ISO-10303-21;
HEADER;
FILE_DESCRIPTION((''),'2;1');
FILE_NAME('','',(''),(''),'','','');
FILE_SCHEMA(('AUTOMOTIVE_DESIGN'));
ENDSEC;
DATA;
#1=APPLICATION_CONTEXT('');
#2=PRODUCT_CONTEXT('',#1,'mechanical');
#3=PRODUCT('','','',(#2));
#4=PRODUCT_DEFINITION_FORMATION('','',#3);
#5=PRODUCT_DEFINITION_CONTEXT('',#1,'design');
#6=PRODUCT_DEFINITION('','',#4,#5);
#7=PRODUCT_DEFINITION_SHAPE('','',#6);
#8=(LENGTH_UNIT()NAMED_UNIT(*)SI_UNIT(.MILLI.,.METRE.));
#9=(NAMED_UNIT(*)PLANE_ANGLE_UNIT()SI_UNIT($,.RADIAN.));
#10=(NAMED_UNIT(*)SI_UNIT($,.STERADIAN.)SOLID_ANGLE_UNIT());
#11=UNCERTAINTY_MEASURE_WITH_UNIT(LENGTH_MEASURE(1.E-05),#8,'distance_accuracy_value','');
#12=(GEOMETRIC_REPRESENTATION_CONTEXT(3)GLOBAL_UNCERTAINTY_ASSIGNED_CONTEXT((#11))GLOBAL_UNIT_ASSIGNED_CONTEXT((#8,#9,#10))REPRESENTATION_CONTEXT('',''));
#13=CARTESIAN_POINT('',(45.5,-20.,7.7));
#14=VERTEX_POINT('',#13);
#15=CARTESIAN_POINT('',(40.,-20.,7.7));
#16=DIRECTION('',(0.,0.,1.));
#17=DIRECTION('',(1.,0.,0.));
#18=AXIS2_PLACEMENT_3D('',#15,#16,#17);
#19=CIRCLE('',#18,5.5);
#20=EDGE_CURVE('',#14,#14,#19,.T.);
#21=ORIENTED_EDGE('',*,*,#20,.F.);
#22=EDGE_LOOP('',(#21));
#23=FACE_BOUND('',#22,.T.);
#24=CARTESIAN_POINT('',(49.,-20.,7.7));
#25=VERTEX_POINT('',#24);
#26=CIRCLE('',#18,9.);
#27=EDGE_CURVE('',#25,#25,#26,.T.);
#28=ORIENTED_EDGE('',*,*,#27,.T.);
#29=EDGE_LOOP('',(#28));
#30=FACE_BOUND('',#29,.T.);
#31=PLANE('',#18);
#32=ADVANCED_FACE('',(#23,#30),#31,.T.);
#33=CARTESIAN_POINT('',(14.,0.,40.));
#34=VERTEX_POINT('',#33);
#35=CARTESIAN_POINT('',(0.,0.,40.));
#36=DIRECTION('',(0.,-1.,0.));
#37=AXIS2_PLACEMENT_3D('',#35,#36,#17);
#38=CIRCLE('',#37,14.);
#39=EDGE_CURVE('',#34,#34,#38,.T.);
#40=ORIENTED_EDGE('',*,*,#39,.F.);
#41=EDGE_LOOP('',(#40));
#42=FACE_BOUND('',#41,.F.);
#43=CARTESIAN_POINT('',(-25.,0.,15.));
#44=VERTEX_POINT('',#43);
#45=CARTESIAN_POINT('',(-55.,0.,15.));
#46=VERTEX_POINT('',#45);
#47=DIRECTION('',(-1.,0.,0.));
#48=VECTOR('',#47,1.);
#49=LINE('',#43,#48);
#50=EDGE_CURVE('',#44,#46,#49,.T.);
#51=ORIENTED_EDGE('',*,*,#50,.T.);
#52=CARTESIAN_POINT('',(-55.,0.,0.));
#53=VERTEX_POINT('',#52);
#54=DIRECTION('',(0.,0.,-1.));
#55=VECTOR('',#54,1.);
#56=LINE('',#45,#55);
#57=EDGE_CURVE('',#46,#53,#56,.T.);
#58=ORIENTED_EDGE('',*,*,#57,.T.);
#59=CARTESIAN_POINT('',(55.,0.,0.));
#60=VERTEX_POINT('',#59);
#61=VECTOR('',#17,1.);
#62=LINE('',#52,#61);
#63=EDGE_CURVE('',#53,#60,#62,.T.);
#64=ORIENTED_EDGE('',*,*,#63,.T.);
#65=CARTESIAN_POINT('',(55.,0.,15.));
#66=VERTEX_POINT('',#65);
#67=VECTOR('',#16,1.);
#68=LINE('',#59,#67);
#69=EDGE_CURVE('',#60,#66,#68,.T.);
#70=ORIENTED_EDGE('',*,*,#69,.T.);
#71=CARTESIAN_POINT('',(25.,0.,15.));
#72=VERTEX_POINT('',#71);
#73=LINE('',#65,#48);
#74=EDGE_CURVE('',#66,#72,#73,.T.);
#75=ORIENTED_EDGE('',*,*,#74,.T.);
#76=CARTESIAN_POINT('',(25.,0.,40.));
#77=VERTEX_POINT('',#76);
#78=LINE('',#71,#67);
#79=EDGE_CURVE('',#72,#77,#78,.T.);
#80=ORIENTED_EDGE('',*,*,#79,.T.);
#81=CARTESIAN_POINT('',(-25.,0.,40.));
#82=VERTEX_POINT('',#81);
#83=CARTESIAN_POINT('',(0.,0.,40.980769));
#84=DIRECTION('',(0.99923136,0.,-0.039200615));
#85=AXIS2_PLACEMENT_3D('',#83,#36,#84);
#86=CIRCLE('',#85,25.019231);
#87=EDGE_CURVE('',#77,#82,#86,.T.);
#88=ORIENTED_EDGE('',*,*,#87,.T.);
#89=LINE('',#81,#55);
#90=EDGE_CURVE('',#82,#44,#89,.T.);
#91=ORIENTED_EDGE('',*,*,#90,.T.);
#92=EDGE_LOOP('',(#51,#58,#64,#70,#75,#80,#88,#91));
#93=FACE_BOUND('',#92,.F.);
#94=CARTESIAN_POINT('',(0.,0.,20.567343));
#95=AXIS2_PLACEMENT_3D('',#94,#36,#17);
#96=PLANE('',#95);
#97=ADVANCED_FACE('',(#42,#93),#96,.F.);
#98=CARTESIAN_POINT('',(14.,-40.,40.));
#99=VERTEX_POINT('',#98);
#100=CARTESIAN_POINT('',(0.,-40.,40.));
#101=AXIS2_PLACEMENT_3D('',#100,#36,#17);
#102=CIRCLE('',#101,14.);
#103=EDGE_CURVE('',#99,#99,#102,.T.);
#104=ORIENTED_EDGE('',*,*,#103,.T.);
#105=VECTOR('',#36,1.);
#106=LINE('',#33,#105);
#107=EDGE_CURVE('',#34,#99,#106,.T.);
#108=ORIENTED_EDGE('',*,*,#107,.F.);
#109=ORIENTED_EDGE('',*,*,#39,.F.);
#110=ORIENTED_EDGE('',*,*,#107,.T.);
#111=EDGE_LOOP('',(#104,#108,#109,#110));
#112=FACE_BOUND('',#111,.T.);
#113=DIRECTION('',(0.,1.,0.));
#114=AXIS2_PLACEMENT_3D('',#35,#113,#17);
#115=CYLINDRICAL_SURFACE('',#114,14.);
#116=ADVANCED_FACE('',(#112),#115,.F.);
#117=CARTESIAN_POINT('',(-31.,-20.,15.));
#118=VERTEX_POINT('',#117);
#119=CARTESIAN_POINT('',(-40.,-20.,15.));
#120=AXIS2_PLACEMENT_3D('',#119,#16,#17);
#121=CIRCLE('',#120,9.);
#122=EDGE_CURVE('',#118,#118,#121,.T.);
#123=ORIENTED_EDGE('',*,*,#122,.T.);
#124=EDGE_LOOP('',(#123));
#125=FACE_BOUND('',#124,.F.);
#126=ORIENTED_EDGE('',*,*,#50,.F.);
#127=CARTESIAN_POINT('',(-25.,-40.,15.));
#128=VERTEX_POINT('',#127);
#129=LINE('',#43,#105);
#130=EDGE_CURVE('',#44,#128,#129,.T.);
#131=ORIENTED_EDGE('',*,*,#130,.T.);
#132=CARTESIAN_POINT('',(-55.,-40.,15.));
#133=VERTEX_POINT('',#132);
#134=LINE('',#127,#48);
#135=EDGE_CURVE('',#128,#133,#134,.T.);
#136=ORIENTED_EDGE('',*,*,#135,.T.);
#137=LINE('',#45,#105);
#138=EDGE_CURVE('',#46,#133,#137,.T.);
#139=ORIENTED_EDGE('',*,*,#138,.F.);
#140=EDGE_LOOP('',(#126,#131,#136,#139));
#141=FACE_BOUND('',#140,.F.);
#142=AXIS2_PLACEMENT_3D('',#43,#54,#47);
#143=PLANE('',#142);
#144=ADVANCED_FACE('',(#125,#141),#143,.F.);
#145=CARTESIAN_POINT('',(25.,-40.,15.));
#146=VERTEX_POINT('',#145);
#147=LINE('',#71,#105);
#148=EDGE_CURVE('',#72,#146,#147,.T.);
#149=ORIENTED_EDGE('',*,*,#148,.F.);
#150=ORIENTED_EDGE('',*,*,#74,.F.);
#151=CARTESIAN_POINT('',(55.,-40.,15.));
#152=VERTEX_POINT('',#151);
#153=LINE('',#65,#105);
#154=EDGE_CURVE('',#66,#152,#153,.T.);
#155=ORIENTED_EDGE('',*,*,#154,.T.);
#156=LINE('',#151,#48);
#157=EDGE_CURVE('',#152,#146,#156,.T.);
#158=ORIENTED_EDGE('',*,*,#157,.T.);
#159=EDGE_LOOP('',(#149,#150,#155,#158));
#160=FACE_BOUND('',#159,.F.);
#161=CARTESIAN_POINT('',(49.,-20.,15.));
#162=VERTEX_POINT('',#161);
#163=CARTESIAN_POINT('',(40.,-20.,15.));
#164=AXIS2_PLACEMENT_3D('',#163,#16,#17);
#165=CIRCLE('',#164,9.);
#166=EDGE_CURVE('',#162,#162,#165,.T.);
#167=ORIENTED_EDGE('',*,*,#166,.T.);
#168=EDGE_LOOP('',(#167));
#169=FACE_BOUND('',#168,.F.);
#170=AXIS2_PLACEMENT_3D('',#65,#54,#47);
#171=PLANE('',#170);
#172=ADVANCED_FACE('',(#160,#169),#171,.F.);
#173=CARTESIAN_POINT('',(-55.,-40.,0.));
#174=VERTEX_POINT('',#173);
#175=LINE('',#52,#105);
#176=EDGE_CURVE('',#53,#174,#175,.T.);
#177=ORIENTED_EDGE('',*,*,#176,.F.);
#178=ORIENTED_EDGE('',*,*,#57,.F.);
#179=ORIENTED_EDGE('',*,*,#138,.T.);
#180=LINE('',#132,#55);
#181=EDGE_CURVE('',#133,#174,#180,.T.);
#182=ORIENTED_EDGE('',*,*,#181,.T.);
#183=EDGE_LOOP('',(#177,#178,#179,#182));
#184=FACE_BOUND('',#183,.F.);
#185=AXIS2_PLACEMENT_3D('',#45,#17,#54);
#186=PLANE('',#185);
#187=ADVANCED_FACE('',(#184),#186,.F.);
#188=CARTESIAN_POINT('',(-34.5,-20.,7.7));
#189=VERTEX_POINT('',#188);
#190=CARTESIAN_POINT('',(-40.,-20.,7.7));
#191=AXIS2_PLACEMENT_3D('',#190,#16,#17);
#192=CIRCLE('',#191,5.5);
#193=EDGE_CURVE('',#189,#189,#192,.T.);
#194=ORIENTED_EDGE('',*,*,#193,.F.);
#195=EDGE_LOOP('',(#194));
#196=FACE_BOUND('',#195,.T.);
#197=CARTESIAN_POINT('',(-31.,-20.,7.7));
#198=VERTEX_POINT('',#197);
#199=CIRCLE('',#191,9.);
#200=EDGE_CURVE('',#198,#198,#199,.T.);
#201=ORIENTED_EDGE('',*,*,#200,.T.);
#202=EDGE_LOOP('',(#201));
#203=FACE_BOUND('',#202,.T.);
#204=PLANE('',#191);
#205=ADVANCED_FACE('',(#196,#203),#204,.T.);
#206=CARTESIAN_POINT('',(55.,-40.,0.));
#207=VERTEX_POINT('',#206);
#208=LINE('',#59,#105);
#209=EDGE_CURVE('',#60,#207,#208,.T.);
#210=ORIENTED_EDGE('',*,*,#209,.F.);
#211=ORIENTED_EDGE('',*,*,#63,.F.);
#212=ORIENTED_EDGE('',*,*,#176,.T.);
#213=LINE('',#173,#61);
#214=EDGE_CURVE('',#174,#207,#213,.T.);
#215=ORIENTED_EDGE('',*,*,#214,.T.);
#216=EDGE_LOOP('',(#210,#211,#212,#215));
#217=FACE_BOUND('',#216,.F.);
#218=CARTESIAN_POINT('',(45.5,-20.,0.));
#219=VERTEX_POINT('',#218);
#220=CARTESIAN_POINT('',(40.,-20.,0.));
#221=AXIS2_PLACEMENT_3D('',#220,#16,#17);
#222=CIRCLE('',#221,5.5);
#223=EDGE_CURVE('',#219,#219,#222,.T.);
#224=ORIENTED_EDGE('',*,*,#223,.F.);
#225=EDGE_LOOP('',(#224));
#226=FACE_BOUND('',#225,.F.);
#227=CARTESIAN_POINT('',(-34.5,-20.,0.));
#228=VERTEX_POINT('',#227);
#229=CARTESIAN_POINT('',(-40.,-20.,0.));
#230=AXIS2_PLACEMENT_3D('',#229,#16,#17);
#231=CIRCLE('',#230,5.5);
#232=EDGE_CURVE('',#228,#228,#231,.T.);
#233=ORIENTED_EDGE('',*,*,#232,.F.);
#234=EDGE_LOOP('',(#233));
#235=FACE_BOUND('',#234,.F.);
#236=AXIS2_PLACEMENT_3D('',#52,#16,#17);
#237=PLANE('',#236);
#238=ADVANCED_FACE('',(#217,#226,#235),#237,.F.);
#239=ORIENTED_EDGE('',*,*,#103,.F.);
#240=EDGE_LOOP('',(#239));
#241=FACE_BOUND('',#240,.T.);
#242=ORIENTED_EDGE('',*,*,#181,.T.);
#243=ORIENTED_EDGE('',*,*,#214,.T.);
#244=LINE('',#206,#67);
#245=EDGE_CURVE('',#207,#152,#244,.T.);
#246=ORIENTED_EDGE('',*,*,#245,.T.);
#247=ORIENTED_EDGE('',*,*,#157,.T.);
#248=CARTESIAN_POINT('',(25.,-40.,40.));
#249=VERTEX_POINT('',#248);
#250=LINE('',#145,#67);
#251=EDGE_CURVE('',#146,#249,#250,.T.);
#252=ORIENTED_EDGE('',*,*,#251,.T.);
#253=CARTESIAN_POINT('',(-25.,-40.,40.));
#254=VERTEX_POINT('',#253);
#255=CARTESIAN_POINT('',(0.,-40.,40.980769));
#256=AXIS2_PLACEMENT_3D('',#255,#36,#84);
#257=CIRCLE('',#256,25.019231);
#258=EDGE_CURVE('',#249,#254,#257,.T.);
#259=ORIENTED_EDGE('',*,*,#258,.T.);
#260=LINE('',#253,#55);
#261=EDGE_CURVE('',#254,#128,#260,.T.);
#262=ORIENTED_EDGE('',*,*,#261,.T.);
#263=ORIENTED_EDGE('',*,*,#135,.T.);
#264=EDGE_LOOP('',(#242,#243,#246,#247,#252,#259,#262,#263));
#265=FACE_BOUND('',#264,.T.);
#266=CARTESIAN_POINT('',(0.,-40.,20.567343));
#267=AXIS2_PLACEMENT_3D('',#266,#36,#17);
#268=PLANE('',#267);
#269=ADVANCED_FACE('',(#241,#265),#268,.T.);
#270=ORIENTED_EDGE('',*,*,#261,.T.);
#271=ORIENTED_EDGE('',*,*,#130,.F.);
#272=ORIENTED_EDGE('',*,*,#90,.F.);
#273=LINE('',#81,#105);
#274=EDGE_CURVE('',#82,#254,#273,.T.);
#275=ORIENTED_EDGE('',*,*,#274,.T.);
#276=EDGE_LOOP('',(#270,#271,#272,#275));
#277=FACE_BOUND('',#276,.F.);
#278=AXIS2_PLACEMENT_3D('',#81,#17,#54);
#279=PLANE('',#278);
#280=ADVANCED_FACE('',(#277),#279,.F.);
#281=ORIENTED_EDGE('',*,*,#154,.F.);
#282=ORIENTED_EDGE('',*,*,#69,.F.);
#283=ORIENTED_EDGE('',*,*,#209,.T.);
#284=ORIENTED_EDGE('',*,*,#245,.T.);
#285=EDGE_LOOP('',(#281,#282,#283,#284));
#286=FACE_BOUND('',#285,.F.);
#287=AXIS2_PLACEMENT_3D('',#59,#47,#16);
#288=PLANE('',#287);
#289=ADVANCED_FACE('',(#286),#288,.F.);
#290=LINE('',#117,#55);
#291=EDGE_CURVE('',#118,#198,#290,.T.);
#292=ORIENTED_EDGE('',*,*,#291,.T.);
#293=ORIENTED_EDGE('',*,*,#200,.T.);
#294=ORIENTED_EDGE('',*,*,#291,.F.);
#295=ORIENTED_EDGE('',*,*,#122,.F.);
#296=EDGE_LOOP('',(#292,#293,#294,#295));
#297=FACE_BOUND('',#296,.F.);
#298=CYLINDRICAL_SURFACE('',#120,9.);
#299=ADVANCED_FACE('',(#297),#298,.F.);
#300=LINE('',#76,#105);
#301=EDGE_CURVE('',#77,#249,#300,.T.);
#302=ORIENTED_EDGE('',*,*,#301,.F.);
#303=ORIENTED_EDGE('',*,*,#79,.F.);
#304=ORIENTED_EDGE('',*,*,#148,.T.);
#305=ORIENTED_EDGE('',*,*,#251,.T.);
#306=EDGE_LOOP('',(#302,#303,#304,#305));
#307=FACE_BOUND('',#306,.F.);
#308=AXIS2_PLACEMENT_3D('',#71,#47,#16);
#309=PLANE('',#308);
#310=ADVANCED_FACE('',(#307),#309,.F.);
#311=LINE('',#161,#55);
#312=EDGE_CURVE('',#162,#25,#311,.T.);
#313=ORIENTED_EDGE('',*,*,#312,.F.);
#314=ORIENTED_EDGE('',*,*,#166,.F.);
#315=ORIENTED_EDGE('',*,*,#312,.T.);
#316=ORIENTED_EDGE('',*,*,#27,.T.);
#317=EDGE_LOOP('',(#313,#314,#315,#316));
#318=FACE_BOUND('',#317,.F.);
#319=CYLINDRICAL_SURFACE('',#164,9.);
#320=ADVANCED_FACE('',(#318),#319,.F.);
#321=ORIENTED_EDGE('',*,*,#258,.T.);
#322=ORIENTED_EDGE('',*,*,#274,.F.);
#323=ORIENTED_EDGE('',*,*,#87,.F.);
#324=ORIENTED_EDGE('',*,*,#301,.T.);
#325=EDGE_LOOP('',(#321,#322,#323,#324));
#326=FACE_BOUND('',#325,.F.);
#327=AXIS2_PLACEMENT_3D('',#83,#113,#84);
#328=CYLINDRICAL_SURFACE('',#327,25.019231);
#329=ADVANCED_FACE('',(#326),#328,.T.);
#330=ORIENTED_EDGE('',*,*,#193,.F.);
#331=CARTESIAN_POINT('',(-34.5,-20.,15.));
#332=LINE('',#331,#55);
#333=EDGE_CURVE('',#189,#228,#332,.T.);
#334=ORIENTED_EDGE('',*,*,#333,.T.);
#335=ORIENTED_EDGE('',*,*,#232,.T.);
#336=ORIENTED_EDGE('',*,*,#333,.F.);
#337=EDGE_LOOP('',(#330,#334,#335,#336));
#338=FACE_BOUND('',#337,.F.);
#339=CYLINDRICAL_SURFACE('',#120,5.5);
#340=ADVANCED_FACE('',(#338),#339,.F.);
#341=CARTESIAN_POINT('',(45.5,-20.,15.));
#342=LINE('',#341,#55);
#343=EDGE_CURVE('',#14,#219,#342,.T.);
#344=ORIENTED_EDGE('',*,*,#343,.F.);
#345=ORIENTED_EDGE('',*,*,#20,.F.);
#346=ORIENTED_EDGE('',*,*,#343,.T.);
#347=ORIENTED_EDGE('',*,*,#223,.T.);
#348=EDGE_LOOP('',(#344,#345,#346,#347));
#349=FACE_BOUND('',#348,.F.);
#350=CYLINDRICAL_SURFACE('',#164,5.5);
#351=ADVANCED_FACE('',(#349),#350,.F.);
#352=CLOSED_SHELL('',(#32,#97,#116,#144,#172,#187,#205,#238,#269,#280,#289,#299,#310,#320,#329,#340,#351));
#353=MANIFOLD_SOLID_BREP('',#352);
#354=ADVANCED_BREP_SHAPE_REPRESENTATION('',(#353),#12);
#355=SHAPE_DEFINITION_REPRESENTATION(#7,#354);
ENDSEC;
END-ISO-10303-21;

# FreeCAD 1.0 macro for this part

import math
import FreeCAD as App
import Part
import Sketcher
from FreeCAD import Vector
Q = App.Units.Quantity

doc = App.newDocument("Part")
body = doc.addObject("PartDesign::Body", "Body")

sketch1 = doc.addObject("Sketcher::SketchObject", "Sketch")
body.addObject(sketch1)
sketch1.AttachmentSupport = (doc.XZ_Plane, [""])
sketch1.MapMode = "FlatFace"
sketch1.addGeometry([
    Part.LineSegment(Vector(-55, 0, 0), Vector(55, 0, 0)),
    Part.LineSegment(Vector(55, 0, 0), Vector(55, 15, 0)),
    Part.LineSegment(Vector(55, 15, 0), Vector(25, 15, 0)),
    Part.LineSegment(Vector(25, 15, 0), Vector(25, 40, 0)),
    Part.ArcOfCircle(Part.Circle(Vector(0, 41, 0), Vector(0, 0, 1), 25), math.radians(-2), math.radians(182)),
    Part.LineSegment(Vector(-25, 40, 0), Vector(-25, 15, 0)),
    Part.LineSegment(Vector(-25, 15, 0), Vector(-55, 15, 0)),
    Part.LineSegment(Vector(-55, 15, 0), Vector(-55, 0, 0)),
    Part.Circle(Vector(0, 40, 0), Vector(0, 0, 1), 14),
], False)
sketch1.addConstraint([
    Sketcher.Constraint("Coincident", 0, 2, 1, 1),
    Sketcher.Constraint("Coincident", 1, 2, 2, 1),
    Sketcher.Constraint("Coincident", 2, 2, 3, 1),
    Sketcher.Constraint("Coincident", 3, 2, 4, 1),
    Sketcher.Constraint("Coincident", 4, 2, 5, 1),
    Sketcher.Constraint("Coincident", 5, 2, 6, 1),
    Sketcher.Constraint("Coincident", 6, 2, 7, 1),
    Sketcher.Constraint("Coincident", 7, 2, 0, 1),
    Sketcher.Constraint("Horizontal", 0),
    Sketcher.Constraint("Vertical", 1),
    Sketcher.Constraint("Horizontal", 2),
    Sketcher.Constraint("Vertical", 3),
    Sketcher.Constraint("Vertical", 5),
    Sketcher.Constraint("Horizontal", 6),
    Sketcher.Constraint("Vertical", 7),
    Sketcher.Constraint("Symmetric", 0, 2, 7, 2, -1, 1),
    Sketcher.Constraint("Symmetric", 3, 2, 4, 2, -2),
    Sketcher.Constraint("PointOnObject", 8, 3, -2),
    Sketcher.Constraint("Horizontal", 8, 3, 3, 2),
    Sketcher.Constraint("Horizontal", 2, 2, 5, 2),
    Sketcher.Constraint("Diameter", 8, Q("28 mm")),
    Sketcher.Constraint("DistanceX", 0, 1, 0, 2, Q("110 mm")),
    Sketcher.Constraint("DistanceX", 2, 2, 2, 1, Q("30 mm")),
    Sketcher.Constraint("DistanceY", 1, 1, 1, 2, Q("15 mm")),
    Sketcher.Constraint("DistanceY", 3, 1, 3, 2, Q("25 mm")),
    Sketcher.Constraint("Radius", 4, Q("25.019231 mm")),
])
pad1 = doc.addObject("PartDesign::Pad", "Pad")
body.addObject(pad1)
pad1.Profile = sketch1
pad1.Length = 40

sketch2 = doc.addObject("Sketcher::SketchObject", "Sketch001")
body.addObject(sketch2)
sketch2.AttachmentSupport = (doc.XY_Plane, [""])
sketch2.MapMode = "FlatFace"
sketch2.AttachmentOffset = App.Placement(Vector(0, 0, 15), App.Rotation())
sketch2.addGeometry([
    Part.Circle(Vector(40, -20, 0), Vector(0, 0, 1), 6),
    Part.Circle(Vector(-40, -20, 0), Vector(0, 0, 1), 6),
], False)
sketch2.addConstraint([
    Sketcher.Constraint("Equal", 0, 1),
    Sketcher.Constraint("Symmetric", 0, 3, 1, 3, -2),
    Sketcher.Constraint("Diameter", 0, Q("11 mm")),
    Sketcher.Constraint("DistanceX", -1, 1, 0, 3, Q("40 mm")),
    Sketcher.Constraint("DistanceY", 0, 3, -1, 1, Q("20 mm")),
])
pocket1 = doc.addObject("PartDesign::Pocket", "Pocket")
body.addObject(pocket1)
pocket1.Profile = sketch2
pocket1.Length = 15

sketch3 = doc.addObject("Sketcher::SketchObject", "Sketch002")
body.addObject(sketch3)
sketch3.AttachmentSupport = (doc.XY_Plane, [""])
sketch3.MapMode = "FlatFace"
sketch3.AttachmentOffset = App.Placement(Vector(0, 0, 15), App.Rotation())
sketch3.addGeometry([
    Part.Circle(Vector(40, -20, 0), Vector(0, 0, 1), 9),
    Part.Circle(Vector(40, -20, 0), Vector(0, 0, 1), 6),
    Part.Circle(Vector(-40, -20, 0), Vector(0, 0, 1), 9),
    Part.Circle(Vector(-40, -20, 0), Vector(0, 0, 1), 6),
], False)
sketch3.addConstraint([
    Sketcher.Constraint("Coincident", 1, 3, 0, 3),
    Sketcher.Constraint("Coincident", 3, 3, 2, 3),
    Sketcher.Constraint("Equal", 0, 2),
    Sketcher.Constraint("Equal", 1, 3),
    Sketcher.Constraint("Symmetric", 0, 3, 2, 3, -2),
    Sketcher.Constraint("Diameter", 0, Q("18 mm")),
    Sketcher.Constraint("Diameter", 1, Q("11 mm")),
    Sketcher.Constraint("DistanceX", -1, 1, 0, 3, Q("40 mm")),
    Sketcher.Constraint("DistanceY", 0, 3, -1, 1, Q("20 mm")),
])
pocket2 = doc.addObject("PartDesign::Pocket", "Pocket001")
body.addObject(pocket2)
pocket2.Profile = sketch3
pocket2.Length = 7.3

doc.recompute()
